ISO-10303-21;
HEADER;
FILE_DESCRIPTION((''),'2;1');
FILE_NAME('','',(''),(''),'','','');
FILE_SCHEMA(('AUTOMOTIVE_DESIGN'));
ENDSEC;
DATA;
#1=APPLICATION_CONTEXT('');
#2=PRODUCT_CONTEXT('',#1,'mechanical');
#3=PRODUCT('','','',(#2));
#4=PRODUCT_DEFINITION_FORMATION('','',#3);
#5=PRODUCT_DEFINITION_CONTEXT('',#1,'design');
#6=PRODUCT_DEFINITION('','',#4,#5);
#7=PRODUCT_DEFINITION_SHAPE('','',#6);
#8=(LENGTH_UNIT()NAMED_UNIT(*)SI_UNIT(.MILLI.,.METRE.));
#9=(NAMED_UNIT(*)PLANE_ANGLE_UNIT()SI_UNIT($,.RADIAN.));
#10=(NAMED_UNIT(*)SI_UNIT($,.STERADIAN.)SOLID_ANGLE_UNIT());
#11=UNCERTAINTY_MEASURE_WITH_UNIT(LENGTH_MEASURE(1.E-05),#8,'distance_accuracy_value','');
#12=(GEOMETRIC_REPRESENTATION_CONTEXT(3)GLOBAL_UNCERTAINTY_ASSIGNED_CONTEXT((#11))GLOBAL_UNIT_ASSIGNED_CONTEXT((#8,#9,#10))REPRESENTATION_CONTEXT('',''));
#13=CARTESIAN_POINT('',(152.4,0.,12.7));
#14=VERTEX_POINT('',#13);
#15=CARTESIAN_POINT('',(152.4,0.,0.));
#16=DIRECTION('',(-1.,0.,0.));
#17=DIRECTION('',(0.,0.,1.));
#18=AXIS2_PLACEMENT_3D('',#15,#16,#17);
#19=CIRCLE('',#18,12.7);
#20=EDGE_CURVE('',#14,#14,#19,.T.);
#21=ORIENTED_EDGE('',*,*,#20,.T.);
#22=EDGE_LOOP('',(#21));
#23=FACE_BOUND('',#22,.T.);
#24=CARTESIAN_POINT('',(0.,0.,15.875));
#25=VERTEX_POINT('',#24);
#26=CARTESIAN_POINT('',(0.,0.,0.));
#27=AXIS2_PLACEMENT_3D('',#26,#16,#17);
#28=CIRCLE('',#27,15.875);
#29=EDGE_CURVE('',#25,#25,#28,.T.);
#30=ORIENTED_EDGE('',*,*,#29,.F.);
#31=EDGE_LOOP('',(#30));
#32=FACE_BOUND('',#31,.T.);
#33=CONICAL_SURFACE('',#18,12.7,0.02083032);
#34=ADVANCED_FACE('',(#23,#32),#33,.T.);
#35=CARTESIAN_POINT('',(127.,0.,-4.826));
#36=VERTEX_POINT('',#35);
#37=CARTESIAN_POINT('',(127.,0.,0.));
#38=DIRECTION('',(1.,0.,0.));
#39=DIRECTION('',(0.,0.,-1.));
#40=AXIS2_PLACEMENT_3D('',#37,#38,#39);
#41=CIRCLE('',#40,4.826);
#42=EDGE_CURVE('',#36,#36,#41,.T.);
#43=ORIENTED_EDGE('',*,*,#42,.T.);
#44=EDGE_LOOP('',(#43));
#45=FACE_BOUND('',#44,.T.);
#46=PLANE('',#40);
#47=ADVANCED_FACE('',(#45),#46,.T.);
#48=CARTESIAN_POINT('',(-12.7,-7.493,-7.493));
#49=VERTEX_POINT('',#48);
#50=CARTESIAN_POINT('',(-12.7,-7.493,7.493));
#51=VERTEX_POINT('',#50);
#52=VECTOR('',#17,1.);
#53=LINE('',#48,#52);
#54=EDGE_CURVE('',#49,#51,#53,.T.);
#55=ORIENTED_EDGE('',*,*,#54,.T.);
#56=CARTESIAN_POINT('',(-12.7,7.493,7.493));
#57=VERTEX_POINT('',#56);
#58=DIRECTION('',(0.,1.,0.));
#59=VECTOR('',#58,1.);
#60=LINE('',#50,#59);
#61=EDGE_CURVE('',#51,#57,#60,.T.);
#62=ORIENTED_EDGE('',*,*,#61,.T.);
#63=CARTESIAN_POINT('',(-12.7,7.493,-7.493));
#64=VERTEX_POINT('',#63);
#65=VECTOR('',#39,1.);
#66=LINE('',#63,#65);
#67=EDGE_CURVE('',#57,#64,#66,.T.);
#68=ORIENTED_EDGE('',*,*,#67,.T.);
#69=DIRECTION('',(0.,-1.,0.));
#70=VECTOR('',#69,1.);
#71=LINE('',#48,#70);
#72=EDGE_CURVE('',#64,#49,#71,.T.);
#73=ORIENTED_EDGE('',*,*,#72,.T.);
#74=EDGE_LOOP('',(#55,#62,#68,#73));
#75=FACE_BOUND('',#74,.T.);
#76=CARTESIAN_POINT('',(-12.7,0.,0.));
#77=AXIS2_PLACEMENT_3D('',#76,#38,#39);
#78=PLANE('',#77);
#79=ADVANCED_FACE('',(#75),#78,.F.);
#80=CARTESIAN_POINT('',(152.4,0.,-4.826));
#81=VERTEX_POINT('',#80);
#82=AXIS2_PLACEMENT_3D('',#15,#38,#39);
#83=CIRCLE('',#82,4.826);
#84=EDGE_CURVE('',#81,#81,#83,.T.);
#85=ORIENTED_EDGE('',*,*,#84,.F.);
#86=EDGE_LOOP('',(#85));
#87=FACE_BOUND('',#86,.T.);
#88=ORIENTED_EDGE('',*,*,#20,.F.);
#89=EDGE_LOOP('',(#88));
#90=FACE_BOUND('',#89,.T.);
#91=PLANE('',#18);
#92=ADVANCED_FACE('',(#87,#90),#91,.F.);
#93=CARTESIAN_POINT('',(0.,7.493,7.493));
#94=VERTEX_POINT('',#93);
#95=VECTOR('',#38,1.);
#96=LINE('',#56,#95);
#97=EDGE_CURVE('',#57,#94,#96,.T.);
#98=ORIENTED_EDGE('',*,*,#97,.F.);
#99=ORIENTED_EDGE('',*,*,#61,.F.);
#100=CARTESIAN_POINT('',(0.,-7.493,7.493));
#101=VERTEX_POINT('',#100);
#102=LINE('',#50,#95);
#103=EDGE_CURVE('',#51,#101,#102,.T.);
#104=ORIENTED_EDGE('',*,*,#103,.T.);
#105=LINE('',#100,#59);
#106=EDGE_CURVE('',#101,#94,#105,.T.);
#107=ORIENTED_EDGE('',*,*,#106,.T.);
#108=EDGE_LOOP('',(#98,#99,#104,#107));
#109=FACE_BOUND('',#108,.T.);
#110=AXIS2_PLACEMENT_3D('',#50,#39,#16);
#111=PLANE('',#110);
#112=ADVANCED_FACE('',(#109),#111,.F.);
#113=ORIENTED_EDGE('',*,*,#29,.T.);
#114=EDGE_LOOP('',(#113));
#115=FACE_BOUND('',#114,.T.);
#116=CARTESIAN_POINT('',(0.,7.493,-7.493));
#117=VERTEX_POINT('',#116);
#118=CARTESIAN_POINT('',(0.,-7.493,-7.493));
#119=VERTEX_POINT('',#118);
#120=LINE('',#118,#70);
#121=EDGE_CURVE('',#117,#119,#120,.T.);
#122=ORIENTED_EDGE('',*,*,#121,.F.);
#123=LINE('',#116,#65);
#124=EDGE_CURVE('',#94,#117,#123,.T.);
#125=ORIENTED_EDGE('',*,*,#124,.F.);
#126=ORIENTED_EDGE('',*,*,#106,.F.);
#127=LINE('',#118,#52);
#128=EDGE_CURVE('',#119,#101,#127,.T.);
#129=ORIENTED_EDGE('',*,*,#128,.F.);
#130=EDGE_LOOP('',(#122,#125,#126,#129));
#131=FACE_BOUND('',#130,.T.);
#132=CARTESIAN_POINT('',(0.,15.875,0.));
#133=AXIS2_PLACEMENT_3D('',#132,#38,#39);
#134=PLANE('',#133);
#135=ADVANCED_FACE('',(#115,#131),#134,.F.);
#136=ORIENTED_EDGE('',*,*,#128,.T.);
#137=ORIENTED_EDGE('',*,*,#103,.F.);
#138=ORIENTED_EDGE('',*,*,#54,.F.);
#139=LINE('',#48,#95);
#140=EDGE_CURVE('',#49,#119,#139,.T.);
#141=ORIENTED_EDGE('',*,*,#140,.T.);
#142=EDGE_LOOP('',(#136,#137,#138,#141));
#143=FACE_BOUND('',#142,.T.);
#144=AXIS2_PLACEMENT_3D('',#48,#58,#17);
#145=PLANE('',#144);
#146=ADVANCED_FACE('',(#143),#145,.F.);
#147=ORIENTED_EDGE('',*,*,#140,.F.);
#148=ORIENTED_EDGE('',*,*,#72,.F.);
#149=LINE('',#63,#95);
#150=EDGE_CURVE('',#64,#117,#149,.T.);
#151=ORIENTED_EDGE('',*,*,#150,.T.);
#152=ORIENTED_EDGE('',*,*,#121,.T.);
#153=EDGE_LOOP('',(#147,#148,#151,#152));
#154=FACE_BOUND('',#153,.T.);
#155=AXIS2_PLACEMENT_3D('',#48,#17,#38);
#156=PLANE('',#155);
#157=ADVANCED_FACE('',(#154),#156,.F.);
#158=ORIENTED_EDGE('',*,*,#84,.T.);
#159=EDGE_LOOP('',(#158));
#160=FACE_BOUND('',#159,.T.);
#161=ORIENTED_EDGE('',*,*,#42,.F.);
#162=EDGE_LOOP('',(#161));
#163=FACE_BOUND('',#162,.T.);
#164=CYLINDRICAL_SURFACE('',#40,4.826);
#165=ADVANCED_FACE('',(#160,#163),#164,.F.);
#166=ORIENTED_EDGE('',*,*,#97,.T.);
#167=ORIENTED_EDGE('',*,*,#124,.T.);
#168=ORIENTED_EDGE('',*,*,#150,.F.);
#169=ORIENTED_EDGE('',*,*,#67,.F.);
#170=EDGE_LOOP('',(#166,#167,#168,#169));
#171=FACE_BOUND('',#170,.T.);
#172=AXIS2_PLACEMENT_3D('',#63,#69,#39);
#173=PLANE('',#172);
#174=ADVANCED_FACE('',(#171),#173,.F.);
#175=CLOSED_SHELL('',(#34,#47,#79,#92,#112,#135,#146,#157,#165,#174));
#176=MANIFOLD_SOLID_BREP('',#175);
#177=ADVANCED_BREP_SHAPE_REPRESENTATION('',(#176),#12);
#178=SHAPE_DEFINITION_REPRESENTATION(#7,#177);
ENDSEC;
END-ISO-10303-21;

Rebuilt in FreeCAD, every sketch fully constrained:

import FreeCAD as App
import Part
import Sketcher
Q = App.Units.Quantity


def add_polygon(sketch, points):
    """Adds a closed chain of lines whose ends are joined by coincident constraints."""
    first, n = sketch.GeometryCount, len(points)
    for a, b in zip(points, points[1:] + points[:1]):
        sketch.addGeometry(Part.LineSegment(App.Vector(*a, 0), App.Vector(*b, 0)), False)
    for i in range(n):
        sketch.addConstraint(Sketcher.Constraint("Coincident", first + i, 2, first + (i + 1) % n, 1))

doc = App.newDocument("Part")
params = doc.addObject("Spreadsheet::Sheet", "Params")
for row, (alias, value) in enumerate([
    ("sketch1_width", "6 in"),
    ("sketch1_height", "0.5 in"),
    ("sketch1_height2", "0.625 in"),
    ("revolution_angle", "360 deg"),
    ("sketch2_diameter", "0.38 in"),
    ("pocket1_length", "1 in"),
    ("sketch3_width", "0.59 in"),
    ("pad1_length", "0.5 in"),
], start=1):
    params.set(f"A{row}", alias)
    params.set(f"B{row}", "=" + value)
    params.setAlias(f"B{row}", alias)

body = doc.addObject("PartDesign::Body", "Body")

# Sketch on XY plane
sketch1 = body.newObject("Sketcher::SketchObject", "Sketch")
sketch1.AttachmentSupport = (doc.getObject("XY_Plane"), [""])
sketch1.MapMode = "FlatFace"
add_polygon(sketch1, [(0, 0), (152, 0), (152, 13), (0, 16)])  # lines 0-3
sketch1.addConstraint(Sketcher.Constraint("Horizontal", 0))
sketch1.addConstraint(Sketcher.Constraint("Vertical", 1))
sketch1.addConstraint(Sketcher.Constraint("Vertical", 3))
sketch1.addConstraint(Sketcher.Constraint("Coincident", 3, 2, -1, 1))
sketch1.addConstraint(Sketcher.Constraint("DistanceX", 0, 1, 0, 2, Q("6 in")))
sketch1.addConstraint(Sketcher.Constraint("DistanceY", 1, 1, 1, 2, Q("0.5 in")))
sketch1.addConstraint(Sketcher.Constraint("DistanceY", 3, 2, 3, 1, Q("0.625 in")))
sketch1.setExpression("Constraints[8]", "Params.sketch1_width")
sketch1.setExpression("Constraints[9]", "Params.sketch1_height")
sketch1.setExpression("Constraints[10]", "Params.sketch1_height2")
revolution = body.newObject("PartDesign::Revolution", "Revolution")
revolution.Profile = sketch1
revolution.ReferenceAxis = (sketch1, ["H_Axis"])
revolution.setExpression("Angle", "Params.revolution_angle")

# Sketch on YZ plane
sketch2 = body.newObject("Sketcher::SketchObject", "Sketch001")
sketch2.AttachmentSupport = (doc.getObject("YZ_Plane"), [""])
sketch2.MapMode = "FlatFace"
sketch2.AttachmentOffset = App.Placement(App.Vector(0, 0, 6 * 25.4), App.Rotation())
sketch2.addGeometry(Part.Circle(App.Vector(0, 0, 0), App.Vector(0, 0, 1), 4.8), False)
sketch2.addConstraint(Sketcher.Constraint("Coincident", 0, 3, -1, 1))
sketch2.addConstraint(Sketcher.Constraint("Diameter", 0, Q("0.38 in")))
sketch2.setExpression("Constraints[1]", "Params.sketch2_diameter")
pocket1 = body.newObject("PartDesign::Pocket", "Pocket")
pocket1.Profile = sketch2
pocket1.setExpression("Length", "Params.pocket1_length")

# Sketch on YZ plane
sketch3 = body.newObject("Sketcher::SketchObject", "Sketch002")
sketch3.AttachmentSupport = (doc.getObject("YZ_Plane"), [""])
sketch3.MapMode = "FlatFace"
add_polygon(sketch3, [(7, -7), (-7, -7), (-7, 7), (7, 7)])  # lines 0-3
sketch3.addConstraint(Sketcher.Constraint("Horizontal", 0))
sketch3.addConstraint(Sketcher.Constraint("Vertical", 1))
sketch3.addConstraint(Sketcher.Constraint("Horizontal", 2))
sketch3.addConstraint(Sketcher.Constraint("Vertical", 3))
sketch3.addConstraint(Sketcher.Constraint("Symmetric", 0, 2, 2, 2, -1, 1))
sketch3.addConstraint(Sketcher.Constraint("Equal", 2, 1))
sketch3.addConstraint(Sketcher.Constraint("DistanceX", 0, 2, 0, 1, Q("0.59 in")))
sketch3.setExpression("Constraints[10]", "Params.sketch3_width")
pad1 = body.newObject("PartDesign::Pad", "Pad")
pad1.Profile = sketch3
pad1.setExpression("Length", "Params.pad1_length")
pad1.Reversed = True

doc.recompute()
